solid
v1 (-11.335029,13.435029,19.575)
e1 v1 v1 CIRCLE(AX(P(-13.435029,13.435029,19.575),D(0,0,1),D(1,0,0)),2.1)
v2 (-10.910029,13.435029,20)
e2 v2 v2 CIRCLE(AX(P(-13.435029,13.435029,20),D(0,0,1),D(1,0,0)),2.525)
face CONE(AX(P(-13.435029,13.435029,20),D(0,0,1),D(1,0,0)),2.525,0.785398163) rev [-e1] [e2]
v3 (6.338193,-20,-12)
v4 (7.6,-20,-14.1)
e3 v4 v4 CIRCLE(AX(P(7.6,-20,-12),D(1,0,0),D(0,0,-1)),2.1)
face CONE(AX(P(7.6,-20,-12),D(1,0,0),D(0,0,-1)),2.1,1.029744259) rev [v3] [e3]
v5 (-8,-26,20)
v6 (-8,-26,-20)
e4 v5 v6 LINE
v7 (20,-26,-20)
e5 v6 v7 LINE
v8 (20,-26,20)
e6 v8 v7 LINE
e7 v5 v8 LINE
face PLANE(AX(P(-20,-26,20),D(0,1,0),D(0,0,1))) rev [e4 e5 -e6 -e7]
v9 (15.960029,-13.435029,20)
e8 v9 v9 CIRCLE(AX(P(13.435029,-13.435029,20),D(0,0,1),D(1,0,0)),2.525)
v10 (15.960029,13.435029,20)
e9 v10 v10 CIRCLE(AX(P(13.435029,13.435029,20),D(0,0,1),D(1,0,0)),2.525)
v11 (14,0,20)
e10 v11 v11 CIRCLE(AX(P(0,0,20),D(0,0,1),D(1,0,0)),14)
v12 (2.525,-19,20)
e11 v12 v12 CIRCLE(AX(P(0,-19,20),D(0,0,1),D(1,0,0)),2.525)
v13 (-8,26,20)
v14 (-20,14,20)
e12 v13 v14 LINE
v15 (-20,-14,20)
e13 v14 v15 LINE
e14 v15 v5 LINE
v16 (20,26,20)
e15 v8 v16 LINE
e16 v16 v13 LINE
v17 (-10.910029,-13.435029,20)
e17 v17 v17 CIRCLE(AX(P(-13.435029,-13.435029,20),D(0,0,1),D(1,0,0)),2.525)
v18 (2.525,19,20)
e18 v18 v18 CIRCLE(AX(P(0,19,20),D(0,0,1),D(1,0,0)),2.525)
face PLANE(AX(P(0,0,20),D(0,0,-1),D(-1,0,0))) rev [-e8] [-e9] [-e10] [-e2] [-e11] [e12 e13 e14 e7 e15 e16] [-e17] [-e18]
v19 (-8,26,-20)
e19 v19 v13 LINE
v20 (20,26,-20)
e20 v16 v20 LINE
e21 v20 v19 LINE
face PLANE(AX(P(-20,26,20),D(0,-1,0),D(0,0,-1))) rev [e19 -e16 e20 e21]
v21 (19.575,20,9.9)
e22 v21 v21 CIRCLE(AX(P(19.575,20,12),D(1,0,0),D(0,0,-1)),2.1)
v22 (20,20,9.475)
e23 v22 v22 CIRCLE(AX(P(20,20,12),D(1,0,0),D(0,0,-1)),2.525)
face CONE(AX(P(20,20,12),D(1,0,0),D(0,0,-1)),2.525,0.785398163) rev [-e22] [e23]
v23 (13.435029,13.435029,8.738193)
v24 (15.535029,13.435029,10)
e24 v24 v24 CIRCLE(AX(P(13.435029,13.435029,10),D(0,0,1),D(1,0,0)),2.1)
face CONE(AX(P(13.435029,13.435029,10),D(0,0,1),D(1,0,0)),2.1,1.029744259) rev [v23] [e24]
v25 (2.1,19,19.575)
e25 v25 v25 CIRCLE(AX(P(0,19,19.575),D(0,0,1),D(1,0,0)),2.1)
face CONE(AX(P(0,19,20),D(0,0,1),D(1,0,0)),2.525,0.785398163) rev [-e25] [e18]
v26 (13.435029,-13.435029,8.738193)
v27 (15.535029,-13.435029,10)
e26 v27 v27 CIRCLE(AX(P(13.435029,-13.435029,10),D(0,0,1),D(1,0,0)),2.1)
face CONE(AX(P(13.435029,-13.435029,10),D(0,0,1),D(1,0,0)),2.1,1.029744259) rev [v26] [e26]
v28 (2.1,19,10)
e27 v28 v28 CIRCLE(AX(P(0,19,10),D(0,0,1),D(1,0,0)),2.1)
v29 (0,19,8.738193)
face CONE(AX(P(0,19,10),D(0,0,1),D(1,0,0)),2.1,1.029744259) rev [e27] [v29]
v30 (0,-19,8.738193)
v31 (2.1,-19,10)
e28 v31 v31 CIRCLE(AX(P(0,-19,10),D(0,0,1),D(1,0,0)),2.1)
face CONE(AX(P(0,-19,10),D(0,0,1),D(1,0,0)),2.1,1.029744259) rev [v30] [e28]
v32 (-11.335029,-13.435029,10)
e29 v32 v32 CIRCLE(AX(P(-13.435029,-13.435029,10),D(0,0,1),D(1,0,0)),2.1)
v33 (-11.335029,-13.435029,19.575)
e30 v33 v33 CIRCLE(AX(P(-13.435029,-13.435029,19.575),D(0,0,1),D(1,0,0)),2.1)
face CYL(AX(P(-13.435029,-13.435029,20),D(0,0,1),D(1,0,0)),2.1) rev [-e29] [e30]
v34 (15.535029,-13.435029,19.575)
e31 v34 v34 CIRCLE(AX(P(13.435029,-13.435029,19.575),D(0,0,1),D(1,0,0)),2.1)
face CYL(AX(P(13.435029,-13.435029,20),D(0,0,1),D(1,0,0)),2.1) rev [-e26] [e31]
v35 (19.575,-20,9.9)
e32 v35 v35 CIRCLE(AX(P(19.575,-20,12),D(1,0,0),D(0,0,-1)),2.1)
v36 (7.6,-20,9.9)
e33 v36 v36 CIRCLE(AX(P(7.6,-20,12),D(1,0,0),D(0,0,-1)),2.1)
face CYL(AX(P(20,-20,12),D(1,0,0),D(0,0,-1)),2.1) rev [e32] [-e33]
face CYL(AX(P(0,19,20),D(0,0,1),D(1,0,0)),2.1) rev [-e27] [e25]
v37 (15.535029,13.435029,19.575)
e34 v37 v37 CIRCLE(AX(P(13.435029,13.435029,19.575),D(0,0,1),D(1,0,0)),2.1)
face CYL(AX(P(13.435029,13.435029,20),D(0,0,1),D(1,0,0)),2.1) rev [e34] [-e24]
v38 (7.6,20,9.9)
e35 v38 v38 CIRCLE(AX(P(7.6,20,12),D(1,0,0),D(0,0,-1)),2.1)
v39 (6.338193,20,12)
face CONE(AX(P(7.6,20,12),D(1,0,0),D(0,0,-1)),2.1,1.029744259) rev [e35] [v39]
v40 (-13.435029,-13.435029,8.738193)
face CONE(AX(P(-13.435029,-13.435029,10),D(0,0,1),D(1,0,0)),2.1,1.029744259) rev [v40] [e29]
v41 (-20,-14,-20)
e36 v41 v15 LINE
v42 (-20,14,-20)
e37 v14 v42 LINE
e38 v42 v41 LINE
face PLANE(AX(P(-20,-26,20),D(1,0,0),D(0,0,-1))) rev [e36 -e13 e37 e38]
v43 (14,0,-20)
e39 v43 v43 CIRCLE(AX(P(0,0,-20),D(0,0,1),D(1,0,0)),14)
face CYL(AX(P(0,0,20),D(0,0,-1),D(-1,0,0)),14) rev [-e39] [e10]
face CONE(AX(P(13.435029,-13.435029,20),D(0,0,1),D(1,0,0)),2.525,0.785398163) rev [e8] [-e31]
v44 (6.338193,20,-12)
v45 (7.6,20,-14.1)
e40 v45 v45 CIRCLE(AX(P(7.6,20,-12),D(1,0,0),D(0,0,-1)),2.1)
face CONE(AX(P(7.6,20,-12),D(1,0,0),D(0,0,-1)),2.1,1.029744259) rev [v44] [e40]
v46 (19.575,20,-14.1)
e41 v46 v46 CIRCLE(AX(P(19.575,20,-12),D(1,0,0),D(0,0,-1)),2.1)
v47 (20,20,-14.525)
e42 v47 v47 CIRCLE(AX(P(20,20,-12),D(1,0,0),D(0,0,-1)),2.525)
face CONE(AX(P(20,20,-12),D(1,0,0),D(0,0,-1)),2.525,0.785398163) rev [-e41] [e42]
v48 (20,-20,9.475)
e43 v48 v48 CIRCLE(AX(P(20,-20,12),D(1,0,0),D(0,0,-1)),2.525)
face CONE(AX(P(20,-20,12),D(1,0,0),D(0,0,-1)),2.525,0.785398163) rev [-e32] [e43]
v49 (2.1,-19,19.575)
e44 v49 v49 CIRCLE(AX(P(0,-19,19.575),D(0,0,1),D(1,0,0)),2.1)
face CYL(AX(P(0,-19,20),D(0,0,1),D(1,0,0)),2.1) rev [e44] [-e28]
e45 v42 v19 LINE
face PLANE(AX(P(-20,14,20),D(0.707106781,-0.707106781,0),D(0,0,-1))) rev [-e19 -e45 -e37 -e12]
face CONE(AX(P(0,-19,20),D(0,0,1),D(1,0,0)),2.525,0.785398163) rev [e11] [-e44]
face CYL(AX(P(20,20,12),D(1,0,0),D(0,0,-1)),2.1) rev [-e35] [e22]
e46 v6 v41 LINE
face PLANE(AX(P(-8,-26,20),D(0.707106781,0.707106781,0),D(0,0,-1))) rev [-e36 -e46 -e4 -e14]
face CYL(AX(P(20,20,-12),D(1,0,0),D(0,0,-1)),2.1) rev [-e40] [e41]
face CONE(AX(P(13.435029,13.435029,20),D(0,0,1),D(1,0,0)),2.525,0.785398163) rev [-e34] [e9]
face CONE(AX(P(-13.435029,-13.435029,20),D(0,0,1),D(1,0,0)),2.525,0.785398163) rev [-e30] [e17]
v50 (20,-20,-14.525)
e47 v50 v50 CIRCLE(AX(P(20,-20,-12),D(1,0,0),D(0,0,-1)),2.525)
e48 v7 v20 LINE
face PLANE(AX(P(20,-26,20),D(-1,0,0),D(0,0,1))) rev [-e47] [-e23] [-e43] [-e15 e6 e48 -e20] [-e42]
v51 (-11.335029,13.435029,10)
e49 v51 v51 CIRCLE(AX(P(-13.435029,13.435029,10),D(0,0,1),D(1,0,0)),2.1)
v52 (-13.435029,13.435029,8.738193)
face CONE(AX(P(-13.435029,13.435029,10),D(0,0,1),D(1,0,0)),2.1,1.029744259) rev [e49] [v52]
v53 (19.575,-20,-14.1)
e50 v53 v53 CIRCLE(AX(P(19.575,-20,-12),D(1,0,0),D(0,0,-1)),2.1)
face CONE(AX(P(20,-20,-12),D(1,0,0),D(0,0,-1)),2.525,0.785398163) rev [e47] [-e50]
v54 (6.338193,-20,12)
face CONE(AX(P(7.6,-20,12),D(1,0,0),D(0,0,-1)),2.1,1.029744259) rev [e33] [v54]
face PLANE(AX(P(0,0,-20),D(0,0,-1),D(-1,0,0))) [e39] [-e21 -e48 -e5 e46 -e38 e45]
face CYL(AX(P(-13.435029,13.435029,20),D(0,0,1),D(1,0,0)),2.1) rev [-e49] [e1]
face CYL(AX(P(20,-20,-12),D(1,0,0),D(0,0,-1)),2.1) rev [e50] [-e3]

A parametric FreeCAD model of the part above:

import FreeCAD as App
import Part
import Sketcher
Q = App.Units.Quantity


def edges_at(feature, points):
    """Names of the edges that pass closest to the given points."""
    edges = feature.Shape.Edges
    near = lambda p: min(range(len(edges)), key=lambda i: edges[i].distToShape(Part.Vertex(*p))[0])
    return sorted({f"Edge{near(p) + 1}" for p in points})


def add_polygon(sketch, points):
    """Adds a closed chain of lines whose ends are joined by coincident constraints."""
    first, n = sketch.GeometryCount, len(points)
    for a, b in zip(points, points[1:] + points[:1]):
        sketch.addGeometry(Part.LineSegment(App.Vector(*a, 0), App.Vector(*b, 0)), False)
    for i in range(n):
        sketch.addConstraint(Sketcher.Constraint("Coincident", first + i, 2, first + (i + 1) % n, 1))

doc = App.newDocument("Part")
body = doc.addObject("PartDesign::Body", "Body")

# Sketch on XY plane
sketch1 = body.newObject("Sketcher::SketchObject", "Sketch")
sketch1.AttachmentSupport = (doc.getObject("XY_Plane"), [""])
sketch1.MapMode = "FlatFace"
add_polygon(sketch1, [(-20, 26), (-20, -26), (20, -26), (20, 26)])  # lines 0-3
sketch1.addGeometry(Part.Circle(App.Vector(0, 0, 0), App.Vector(0, 0, 1), 14), False)  # 4
sketch1.addConstraint(Sketcher.Constraint("Vertical", 0))
sketch1.addConstraint(Sketcher.Constraint("Horizontal", 1))
sketch1.addConstraint(Sketcher.Constraint("Vertical", 2))
sketch1.addConstraint(Sketcher.Constraint("Horizontal", 3))
sketch1.addConstraint(Sketcher.Constraint("Coincident", 4, 3, -1, 1))
sketch1.addConstraint(Sketcher.Constraint("Symmetric", 0, 2, 2, 2, -1, 1))
sketch1.addConstraint(Sketcher.Constraint("Diameter", 4, Q("28 mm")))
sketch1.addConstraint(Sketcher.Constraint("DistanceX", 1, 1, 1, 2, Q("40 mm")))
sketch1.addConstraint(Sketcher.Constraint("DistanceY", 0, 2, 0, 1, Q("52 mm")))
pad1 = body.newObject("PartDesign::Pad", "Pad")
pad1.Profile = sketch1
pad1.Length = 40
pad1.Midplane = True

# Sketch on XY plane
sketch2 = body.newObject("Sketcher::SketchObject", "Sketch001")
sketch2.AttachmentSupport = (doc.getObject("XY_Plane"), [""])
sketch2.MapMode = "FlatFace"
sketch2.AttachmentOffset = App.Placement(App.Vector(0, 0, 20), App.Rotation())
sketch2.addGeometry(Part.Circle(App.Vector(-13.4, 13.4, 0), App.Vector(0, 0, 1), 2.1), False)
sketch2.addGeometry(Part.Circle(App.Vector(0, 19, 0), App.Vector(0, 0, 1), 2.1), False)
sketch2.addGeometry(Part.Circle(App.Vector(13.4, 13.4, 0), App.Vector(0, 0, 1), 2.1), False)
sketch2.addGeometry(Part.Circle(App.Vector(13.4, -13.4, 0), App.Vector(0, 0, 1), 2.1), False)
sketch2.addGeometry(Part.Circle(App.Vector(0, -19, 0), App.Vector(0, 0, 1), 2.1), False)
sketch2.addGeometry(Part.Circle(App.Vector(-13.4, -13.4, 0), App.Vector(0, 0, 1), 2.1), False)
sketch2.addConstraint(Sketcher.Constraint("Equal", 0, 1))
sketch2.addConstraint(Sketcher.Constraint("Equal", 1, 2))
sketch2.addConstraint(Sketcher.Constraint("Equal", 2, 3))
sketch2.addConstraint(Sketcher.Constraint("Equal", 3, 4))
sketch2.addConstraint(Sketcher.Constraint("Equal", 4, 5))
sketch2.addConstraint(Sketcher.Constraint("Symmetric", 0, 3, 3, 3, -1, 1))
sketch2.addConstraint(Sketcher.Constraint("Symmetric", 1, 3, 4, 3, -1, 1))
sketch2.addConstraint(Sketcher.Constraint("Symmetric", 2, 3, 5, 3, -1, 1))
sketch2.addConstraint(Sketcher.Constraint("Symmetric", 0, 3, 2, 3, -2))
sketch2.addConstraint(Sketcher.Constraint("PointOnObject", 1, 3, -2))
sketch2.addConstraint(Sketcher.Constraint("Diameter", 0, Q("4.2 mm")))
sketch2.addConstraint(Sketcher.Constraint("DistanceY", -1, 1, 1, 3, Q("19 mm")))
sketch2.addConstraint(Sketcher.Constraint("DistanceX", 0, 3, -1, 1, Q("13.435029 mm")))
sketch2.addConstraint(Sketcher.Constraint("DistanceY", -1, 1, 0, 3, Q("13.435029 mm")))
doc.recompute()
hole = body.newObject("PartDesign::Hole", "Hole")
hole.Profile = sketch2
hole.ThreadType = "None"
hole.Diameter = 4.2
hole.DepthType = "Dimension"
hole.Depth = 10
hole.DrillPoint = "Angled"
hole.DrillPointAngle = 118
hole.HoleCutType = "Countersink"
hole.HoleCutDiameter = 5.05
hole.HoleCutCountersinkAngle = 90
doc.recompute()

chamfer = body.newObject("PartDesign::Chamfer", "Chamfer")
chamfer.Base = (hole, edges_at(hole, [(-20, -26, 0), (-20, 26, 0)]))
chamfer.Size = 12

# Sketch on YZ plane
sketch3 = body.newObject("Sketcher::SketchObject", "Sketch002")
sketch3.AttachmentSupport = (doc.getObject("YZ_Plane"), [""])
sketch3.MapMode = "FlatFace"
sketch3.AttachmentOffset = App.Placement(App.Vector(0, 0, 20), App.Rotation())
sketch3.addGeometry(Part.Circle(App.Vector(20, 12, 0), App.Vector(0, 0, 1), 2.1), False)
sketch3.addGeometry(Part.Circle(App.Vector(20, -12, 0), App.Vector(0, 0, 1), 2.1), False)
sketch3.addGeometry(Part.Circle(App.Vector(-20, -12, 0), App.Vector(0, 0, 1), 2.1), False)
sketch3.addGeometry(Part.Circle(App.Vector(-20, 12, 0), App.Vector(0, 0, 1), 2.1), False)
sketch3.addConstraint(Sketcher.Constraint("Equal", 0, 1))
sketch3.addConstraint(Sketcher.Constraint("Equal", 1, 2))
sketch3.addConstraint(Sketcher.Constraint("Equal", 2, 3))
sketch3.addConstraint(Sketcher.Constraint("Symmetric", 0, 3, 2, 3, -1, 1))
sketch3.addConstraint(Sketcher.Constraint("Symmetric", 1, 3, 3, 3, -1, 1))
sketch3.addConstraint(Sketcher.Constraint("Symmetric", 1, 3, 2, 3, -2))
sketch3.addConstraint(Sketcher.Constraint("Diameter", 0, Q("4.2 mm")))
sketch3.addConstraint(Sketcher.Constraint("DistanceX", -1, 1, 0, 3, Q("20 mm")))
sketch3.addConstraint(Sketcher.Constraint("DistanceY", -1, 1, 0, 3, Q("12 mm")))
doc.recompute()
hole2 = body.newObject("PartDesign::Hole", "Hole001")
hole2.Profile = sketch3
hole2.ThreadType = "None"
hole2.Diameter = 4.2
hole2.DepthType = "Dimension"
hole2.Depth = 12.4
hole2.DrillPoint = "Angled"
hole2.DrillPointAngle = 118
hole2.HoleCutType = "Countersink"
hole2.HoleCutDiameter = 5.05
hole2.HoleCutCountersinkAngle = 90

doc.recompute()
